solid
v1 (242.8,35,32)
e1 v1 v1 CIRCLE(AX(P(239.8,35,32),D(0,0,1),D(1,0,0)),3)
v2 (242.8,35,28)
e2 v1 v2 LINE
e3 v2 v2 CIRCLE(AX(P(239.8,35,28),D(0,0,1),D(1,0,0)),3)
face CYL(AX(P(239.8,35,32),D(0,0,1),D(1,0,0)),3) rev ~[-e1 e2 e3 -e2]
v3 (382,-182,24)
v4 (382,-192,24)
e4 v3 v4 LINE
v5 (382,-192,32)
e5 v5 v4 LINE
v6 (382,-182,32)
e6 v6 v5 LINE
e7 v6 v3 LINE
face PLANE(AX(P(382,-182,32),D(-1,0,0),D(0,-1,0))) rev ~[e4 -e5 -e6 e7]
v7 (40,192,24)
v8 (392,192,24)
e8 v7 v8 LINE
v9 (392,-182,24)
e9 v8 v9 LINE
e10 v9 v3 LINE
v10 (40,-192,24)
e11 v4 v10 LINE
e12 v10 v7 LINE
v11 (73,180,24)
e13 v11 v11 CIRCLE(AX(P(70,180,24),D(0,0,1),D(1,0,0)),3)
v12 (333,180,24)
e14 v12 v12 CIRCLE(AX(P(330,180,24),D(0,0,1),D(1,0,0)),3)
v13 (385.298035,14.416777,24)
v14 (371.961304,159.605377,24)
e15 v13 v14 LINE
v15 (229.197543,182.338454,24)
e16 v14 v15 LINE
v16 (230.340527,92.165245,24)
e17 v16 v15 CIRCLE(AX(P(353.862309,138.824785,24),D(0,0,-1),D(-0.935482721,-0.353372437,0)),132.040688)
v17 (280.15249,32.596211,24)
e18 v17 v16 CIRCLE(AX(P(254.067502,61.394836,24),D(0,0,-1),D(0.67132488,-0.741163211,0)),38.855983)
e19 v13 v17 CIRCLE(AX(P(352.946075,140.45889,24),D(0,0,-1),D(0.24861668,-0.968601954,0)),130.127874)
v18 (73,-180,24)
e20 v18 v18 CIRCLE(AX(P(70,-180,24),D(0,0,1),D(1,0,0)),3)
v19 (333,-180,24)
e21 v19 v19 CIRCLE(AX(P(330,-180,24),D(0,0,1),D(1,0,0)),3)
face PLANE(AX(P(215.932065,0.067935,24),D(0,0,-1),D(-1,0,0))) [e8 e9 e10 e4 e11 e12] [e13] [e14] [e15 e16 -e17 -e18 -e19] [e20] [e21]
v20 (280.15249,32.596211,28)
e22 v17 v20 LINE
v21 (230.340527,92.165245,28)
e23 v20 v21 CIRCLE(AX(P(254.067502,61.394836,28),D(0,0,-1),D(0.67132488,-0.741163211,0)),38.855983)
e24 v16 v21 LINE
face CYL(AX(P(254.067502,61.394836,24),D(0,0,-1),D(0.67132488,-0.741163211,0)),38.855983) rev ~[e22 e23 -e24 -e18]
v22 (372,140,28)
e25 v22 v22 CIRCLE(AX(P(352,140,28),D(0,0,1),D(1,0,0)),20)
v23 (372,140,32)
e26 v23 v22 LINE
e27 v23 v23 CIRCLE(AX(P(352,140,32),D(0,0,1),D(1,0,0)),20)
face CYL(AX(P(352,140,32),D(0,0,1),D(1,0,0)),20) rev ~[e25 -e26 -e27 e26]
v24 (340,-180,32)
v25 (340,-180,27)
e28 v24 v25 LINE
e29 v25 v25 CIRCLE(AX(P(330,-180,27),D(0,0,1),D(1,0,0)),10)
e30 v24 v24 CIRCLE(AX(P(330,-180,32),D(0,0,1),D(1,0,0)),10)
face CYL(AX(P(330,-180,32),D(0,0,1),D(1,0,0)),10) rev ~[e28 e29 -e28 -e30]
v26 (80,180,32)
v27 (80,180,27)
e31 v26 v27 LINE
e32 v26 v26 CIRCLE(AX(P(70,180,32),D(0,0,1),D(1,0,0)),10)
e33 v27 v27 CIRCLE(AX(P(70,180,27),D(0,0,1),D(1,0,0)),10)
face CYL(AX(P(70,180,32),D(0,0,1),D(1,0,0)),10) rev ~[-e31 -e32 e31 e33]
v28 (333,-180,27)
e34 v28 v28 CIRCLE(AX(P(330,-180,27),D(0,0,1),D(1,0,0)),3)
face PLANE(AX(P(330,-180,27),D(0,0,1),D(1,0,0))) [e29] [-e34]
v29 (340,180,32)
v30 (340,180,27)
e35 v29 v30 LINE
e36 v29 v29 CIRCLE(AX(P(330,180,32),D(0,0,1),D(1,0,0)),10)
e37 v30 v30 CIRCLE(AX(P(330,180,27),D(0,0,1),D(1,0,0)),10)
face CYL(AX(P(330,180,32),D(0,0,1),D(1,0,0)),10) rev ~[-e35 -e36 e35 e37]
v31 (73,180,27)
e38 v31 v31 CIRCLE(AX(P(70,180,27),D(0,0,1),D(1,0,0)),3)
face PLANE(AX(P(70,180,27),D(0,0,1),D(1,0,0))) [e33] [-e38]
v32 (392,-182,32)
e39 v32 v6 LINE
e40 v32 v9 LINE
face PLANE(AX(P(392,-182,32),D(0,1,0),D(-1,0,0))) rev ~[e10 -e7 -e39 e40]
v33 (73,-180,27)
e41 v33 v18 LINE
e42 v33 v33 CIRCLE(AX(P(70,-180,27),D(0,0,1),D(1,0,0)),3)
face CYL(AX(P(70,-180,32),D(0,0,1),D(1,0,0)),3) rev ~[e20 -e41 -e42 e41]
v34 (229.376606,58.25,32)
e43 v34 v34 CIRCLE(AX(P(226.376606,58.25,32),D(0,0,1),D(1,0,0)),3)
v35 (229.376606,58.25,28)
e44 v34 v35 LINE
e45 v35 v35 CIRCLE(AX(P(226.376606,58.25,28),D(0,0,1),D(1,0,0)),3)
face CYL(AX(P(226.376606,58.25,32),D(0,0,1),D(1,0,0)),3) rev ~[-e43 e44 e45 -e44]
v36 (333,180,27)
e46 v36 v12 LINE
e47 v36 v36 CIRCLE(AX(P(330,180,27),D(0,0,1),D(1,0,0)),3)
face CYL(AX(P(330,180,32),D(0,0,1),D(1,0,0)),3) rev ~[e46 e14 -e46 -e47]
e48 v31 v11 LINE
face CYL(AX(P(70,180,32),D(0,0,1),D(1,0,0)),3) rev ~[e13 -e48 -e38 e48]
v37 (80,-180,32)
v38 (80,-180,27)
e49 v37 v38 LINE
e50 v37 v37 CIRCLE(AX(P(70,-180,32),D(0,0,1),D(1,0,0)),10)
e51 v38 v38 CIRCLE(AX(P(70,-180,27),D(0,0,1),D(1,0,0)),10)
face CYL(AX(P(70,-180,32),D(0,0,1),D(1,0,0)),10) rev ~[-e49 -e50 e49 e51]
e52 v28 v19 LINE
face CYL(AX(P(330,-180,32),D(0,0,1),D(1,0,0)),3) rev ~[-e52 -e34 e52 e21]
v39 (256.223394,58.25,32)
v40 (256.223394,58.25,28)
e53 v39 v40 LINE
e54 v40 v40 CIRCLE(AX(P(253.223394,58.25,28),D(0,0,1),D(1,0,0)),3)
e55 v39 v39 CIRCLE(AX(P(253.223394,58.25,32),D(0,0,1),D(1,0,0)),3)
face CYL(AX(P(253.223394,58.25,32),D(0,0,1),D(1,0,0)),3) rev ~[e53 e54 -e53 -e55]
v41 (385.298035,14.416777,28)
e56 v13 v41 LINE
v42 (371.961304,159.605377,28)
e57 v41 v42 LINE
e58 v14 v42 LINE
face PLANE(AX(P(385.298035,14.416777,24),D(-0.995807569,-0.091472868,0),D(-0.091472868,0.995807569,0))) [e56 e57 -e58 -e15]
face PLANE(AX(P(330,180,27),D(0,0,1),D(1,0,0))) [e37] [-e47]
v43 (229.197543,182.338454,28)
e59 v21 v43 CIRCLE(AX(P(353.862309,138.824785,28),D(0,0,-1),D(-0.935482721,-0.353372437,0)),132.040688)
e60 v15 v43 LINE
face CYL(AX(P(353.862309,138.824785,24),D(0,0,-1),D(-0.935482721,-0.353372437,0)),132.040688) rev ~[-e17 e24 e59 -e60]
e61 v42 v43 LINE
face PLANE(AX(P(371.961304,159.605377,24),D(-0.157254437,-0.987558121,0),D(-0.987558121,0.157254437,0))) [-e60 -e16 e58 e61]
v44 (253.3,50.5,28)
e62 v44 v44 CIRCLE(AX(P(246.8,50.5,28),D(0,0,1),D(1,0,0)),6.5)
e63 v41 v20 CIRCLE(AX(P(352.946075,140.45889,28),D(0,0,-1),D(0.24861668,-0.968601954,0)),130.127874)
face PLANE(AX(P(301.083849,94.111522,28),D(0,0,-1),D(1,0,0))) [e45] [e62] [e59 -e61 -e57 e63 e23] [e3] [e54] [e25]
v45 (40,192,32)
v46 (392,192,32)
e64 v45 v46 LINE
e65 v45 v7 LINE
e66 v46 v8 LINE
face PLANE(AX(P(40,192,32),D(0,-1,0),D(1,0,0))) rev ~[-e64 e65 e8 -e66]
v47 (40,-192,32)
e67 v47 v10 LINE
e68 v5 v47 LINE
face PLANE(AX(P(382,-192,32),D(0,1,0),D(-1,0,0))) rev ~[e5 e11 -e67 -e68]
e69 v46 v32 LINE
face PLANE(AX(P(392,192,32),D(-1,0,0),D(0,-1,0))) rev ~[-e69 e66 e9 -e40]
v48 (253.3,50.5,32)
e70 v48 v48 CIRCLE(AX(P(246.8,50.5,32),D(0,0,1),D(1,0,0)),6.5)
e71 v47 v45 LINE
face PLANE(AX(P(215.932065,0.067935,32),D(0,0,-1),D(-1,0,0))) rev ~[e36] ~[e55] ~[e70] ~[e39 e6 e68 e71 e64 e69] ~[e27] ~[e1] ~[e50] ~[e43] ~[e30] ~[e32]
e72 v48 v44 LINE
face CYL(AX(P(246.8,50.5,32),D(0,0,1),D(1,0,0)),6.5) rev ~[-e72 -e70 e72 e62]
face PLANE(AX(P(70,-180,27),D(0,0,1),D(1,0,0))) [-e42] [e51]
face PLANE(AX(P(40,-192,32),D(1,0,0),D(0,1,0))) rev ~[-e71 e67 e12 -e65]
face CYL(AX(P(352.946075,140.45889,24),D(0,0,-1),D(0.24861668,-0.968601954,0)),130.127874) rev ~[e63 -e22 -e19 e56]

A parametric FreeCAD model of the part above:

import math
import FreeCAD as App
import Part
import Sketcher

V = App.Vector

doc = App.newDocument("Part")
body = doc.addObject("PartDesign::Body", "Body")

# Sketch on XY plane
sketch1 = doc.addObject("Sketcher::SketchObject", "Sketch")
body.addObject(sketch1)
sketch1.AttachmentSupport = (doc.XY_Plane, [""])
sketch1.MapMode = "FlatFace"
sketch1.AttachmentOffset = App.Placement(V(0, 0, 32), App.Rotation())
sketch1.addGeometry([
    Part.LineSegment(V(392, 192, 0), V(40, 192, 0)),  # 0
    Part.LineSegment(V(40, 192, 0), V(40, -192, 0)),  # 1
    Part.LineSegment(V(40, -192, 0), V(382, -192, 0)),  # 2
    Part.LineSegment(V(382, -192, 0), V(382, -182, 0)),  # 3
    Part.LineSegment(V(382, -182, 0), V(392, -182, 0)),  # 4
    Part.LineSegment(V(392, -182, 0), V(392, 192, 0)),  # 5
    Part.Circle(V(330, -180, 0), V(0, 0, 1), 3),  # 6
    Part.Circle(V(70, -180, 0), V(0, 0, 1), 3),  # 7
    Part.Circle(V(239.8, 35, 0), V(0, 0, 1), 3),  # 8
    Part.Circle(V(246.8, 50.5, 0), V(0, 0, 1), 6.5),  # 9
    Part.Circle(V(253.2, 58.2, 0), V(0, 0, 1), 3),  # 10
    Part.Circle(V(226.4, 58.2, 0), V(0, 0, 1), 3),  # 11
    Part.Circle(V(352, 140, 0), V(0, 0, 1), 20),  # 12
    Part.Circle(V(330, 180, 0), V(0, 0, 1), 3),  # 13
    Part.Circle(V(70, 180, 0), V(0, 0, 1), 3),  # 14
], False)
sketch1.addConstraint([
    Sketcher.Constraint("Coincident", 0, 2, 1, 1),
    Sketcher.Constraint("Coincident", 1, 2, 2, 1),
    Sketcher.Constraint("Coincident", 2, 2, 3, 1),
    Sketcher.Constraint("Coincident", 3, 2, 4, 1),
    Sketcher.Constraint("Coincident", 4, 2, 5, 1),
    Sketcher.Constraint("Coincident", 5, 2, 0, 1),
    Sketcher.Constraint("Horizontal", 0),
    Sketcher.Constraint("Vertical", 1),
    Sketcher.Constraint("Horizontal", 2),
    Sketcher.Constraint("Vertical", 3),
    Sketcher.Constraint("Horizontal", 4),
    Sketcher.Constraint("Vertical", 5),
    Sketcher.Constraint("Equal", 6, 7),
    Sketcher.Constraint("Equal", 7, 8),
    Sketcher.Constraint("Equal", 8, 10),
    Sketcher.Constraint("Equal", 10, 11),
    Sketcher.Constraint("Equal", 11, 13),
    Sketcher.Constraint("Equal", 13, 14),
    Sketcher.Constraint("Symmetric", 6, 3, 13, 3, -1),
    Sketcher.Constraint("Symmetric", 7, 3, 14, 3, -1),
    Sketcher.Constraint("Horizontal", 6, 3, 7, 3),
    Sketcher.Constraint("Horizontal", 10, 3, 11, 3),
    Sketcher.Constraint("Equal", 4, 3),
    Sketcher.Constraint("Diameter", 6, 6.0),
    Sketcher.Constraint("Diameter", 9, 13.0),
    Sketcher.Constraint("Diameter", 12, 40.0),
    Sketcher.Constraint("DistanceX", 0, 2, 0, 1, 352.0),
    Sketcher.Constraint("DistanceX", 2, 1, 2, 2, 342.0),
    Sketcher.Constraint("DistanceY", 1, 2, 1, 1, 384.0),
    Sketcher.Constraint("DistanceX", -1, 1, 6, 3, 330.0),
    Sketcher.Constraint("DistanceY", 6, 3, -1, 1, 180.0),
    Sketcher.Constraint("DistanceX", -1, 1, 7, 3, 70.0),
    Sketcher.Constraint("DistanceY", -1, 1, 8, 3, 35.0),
    Sketcher.Constraint("DistanceX", -1, 1, 12, 3, 352.0),
    Sketcher.Constraint("DistanceY", -1, 1, 12, 3, 140.0),
    Sketcher.Constraint("DistanceX", -1, 1, 0, 2, 40.0),
    Sketcher.Constraint("DistanceY", -1, 1, 0, 2, 192.0),
    Sketcher.Constraint("DistanceX", 8, 3, 9, 3, 7.0),
    Sketcher.Constraint("DistanceX", -1, 1, 8, 3, 239.8),
    Sketcher.Constraint("DistanceY", -1, 1, 9, 3, 50.5),
    Sketcher.Constraint("DistanceY", -1, 1, 10, 3, 58.25),
    Sketcher.Constraint("DistanceX", 11, 3, 10, 3, 26.846788),
    Sketcher.Constraint("DistanceX", -1, 1, 10, 3, 253.223394),
])
pad1 = doc.addObject("PartDesign::Pad", "Pad")
body.addObject(pad1)
pad1.Profile = sketch1
pad1.Length = 8
pad1.Reversed = True

# Sketch on XY plane
sketch2 = doc.addObject("Sketcher::SketchObject", "Sketch001")
body.addObject(sketch2)
sketch2.AttachmentSupport = (doc.XY_Plane, [""])
sketch2.MapMode = "FlatFace"
sketch2.AttachmentOffset = App.Placement(V(0, 0, 32), App.Rotation())
sketch2.addGeometry([
    Part.Circle(V(70, 180, 0), V(0, 0, 1), 10),
    Part.Circle(V(330, 180, 0), V(0, 0, 1), 10),
    Part.Circle(V(330, -180, 0), V(0, 0, 1), 10),
    Part.Circle(V(70, -180, 0), V(0, 0, 1), 10),
], False)
sketch2.addConstraint([
    Sketcher.Constraint("Equal", 0, 1),
    Sketcher.Constraint("Equal", 1, 2),
    Sketcher.Constraint("Equal", 2, 3),
    Sketcher.Constraint("Symmetric", 1, 3, 2, 3, -1),
    Sketcher.Constraint("Symmetric", 0, 3, 3, 3, -1),
    Sketcher.Constraint("Horizontal", 0, 3, 1, 3),
    Sketcher.Constraint("Diameter", 0, 20.0),
    Sketcher.Constraint("DistanceX", -1, 1, 0, 3, 70.0),
    Sketcher.Constraint("DistanceY", -1, 1, 0, 3, 180.0),
    Sketcher.Constraint("DistanceX", -1, 1, 1, 3, 330.0),
])
pocket1 = doc.addObject("PartDesign::Pocket", "Pocket")
body.addObject(pocket1)
pocket1.Profile = sketch2
pocket1.Length = 5

# Sketch on XY plane
sketch3 = doc.addObject("Sketcher::SketchObject", "Sketch002")
body.addObject(sketch3)
sketch3.AttachmentSupport = (doc.XY_Plane, [""])
sketch3.MapMode = "FlatFace"
sketch3.AttachmentOffset = App.Placement(V(0, 0, 24), App.Rotation())
sketch3.addGeometry([
    Part.ArcOfCircle(Part.Circle(V(354, 139, 0), V(0, 0, 1), 132), math.radians(161), math.radians(201)),  # 0
    Part.LineSegment(V(229, 182, 0), V(372, 160, 0)),  # 1
    Part.LineSegment(V(372, 160, 0), V(385, 14, 0)),  # 2
    Part.ArcOfCircle(Part.Circle(V(353, 140, 0), V(0, 0, 1), 130), math.radians(-124), math.radians(-76)),  # 3
    Part.ArcOfCircle(Part.Circle(V(254, 61, 0), V(0, 0, 1), 39), math.radians(128), math.radians(312)),  # 4
], False)
sketch3.addConstraint([
    Sketcher.Constraint("Coincident", 0, 1, 1, 1),
    Sketcher.Constraint("Coincident", 1, 2, 2, 1),
    Sketcher.Constraint("Coincident", 2, 2, 3, 2),
    Sketcher.Constraint("Coincident", 3, 1, 4, 2),
    Sketcher.Constraint("Coincident", 4, 1, 0, 2),
    Sketcher.Constraint("Radius", 0, 132.040688),
    Sketcher.Constraint("Radius", 3, 130.127874),
    Sketcher.Constraint("Radius", 4, 38.855983),
    Sketcher.Constraint("DistanceX", -1, 1, 4, 3, 254.067502),
    Sketcher.Constraint("DistanceY", 2, 2, 1, 2, 145.1886),
    Sketcher.Constraint("Distance", 1, 144.562389),
    Sketcher.Constraint("DistanceX", -1, 1, 0, 3, 353.862309),
    Sketcher.Constraint("DistanceY", -1, 1, 3, 3, 140.45889),
    Sketcher.Constraint("DistanceX", -1, 1, 3, 1, 280.15249),
    Sketcher.Constraint("DistanceY", -1, 1, 3, 1, 32.596211),
    Sketcher.Constraint("DistanceY", 4, 3, 0, 3, 77.429949),
    Sketcher.Constraint("DistanceX", 0, 1, 4, 3, 24.869959),
    Sketcher.Constraint("DistanceX", 3, 3, 1, 2, 19.015229),
])
pocket2 = doc.addObject("PartDesign::Pocket", "Pocket001")
body.addObject(pocket2)
pocket2.Profile = sketch3
pocket2.Length = 4
pocket2.Reversed = True

doc.recompute()
